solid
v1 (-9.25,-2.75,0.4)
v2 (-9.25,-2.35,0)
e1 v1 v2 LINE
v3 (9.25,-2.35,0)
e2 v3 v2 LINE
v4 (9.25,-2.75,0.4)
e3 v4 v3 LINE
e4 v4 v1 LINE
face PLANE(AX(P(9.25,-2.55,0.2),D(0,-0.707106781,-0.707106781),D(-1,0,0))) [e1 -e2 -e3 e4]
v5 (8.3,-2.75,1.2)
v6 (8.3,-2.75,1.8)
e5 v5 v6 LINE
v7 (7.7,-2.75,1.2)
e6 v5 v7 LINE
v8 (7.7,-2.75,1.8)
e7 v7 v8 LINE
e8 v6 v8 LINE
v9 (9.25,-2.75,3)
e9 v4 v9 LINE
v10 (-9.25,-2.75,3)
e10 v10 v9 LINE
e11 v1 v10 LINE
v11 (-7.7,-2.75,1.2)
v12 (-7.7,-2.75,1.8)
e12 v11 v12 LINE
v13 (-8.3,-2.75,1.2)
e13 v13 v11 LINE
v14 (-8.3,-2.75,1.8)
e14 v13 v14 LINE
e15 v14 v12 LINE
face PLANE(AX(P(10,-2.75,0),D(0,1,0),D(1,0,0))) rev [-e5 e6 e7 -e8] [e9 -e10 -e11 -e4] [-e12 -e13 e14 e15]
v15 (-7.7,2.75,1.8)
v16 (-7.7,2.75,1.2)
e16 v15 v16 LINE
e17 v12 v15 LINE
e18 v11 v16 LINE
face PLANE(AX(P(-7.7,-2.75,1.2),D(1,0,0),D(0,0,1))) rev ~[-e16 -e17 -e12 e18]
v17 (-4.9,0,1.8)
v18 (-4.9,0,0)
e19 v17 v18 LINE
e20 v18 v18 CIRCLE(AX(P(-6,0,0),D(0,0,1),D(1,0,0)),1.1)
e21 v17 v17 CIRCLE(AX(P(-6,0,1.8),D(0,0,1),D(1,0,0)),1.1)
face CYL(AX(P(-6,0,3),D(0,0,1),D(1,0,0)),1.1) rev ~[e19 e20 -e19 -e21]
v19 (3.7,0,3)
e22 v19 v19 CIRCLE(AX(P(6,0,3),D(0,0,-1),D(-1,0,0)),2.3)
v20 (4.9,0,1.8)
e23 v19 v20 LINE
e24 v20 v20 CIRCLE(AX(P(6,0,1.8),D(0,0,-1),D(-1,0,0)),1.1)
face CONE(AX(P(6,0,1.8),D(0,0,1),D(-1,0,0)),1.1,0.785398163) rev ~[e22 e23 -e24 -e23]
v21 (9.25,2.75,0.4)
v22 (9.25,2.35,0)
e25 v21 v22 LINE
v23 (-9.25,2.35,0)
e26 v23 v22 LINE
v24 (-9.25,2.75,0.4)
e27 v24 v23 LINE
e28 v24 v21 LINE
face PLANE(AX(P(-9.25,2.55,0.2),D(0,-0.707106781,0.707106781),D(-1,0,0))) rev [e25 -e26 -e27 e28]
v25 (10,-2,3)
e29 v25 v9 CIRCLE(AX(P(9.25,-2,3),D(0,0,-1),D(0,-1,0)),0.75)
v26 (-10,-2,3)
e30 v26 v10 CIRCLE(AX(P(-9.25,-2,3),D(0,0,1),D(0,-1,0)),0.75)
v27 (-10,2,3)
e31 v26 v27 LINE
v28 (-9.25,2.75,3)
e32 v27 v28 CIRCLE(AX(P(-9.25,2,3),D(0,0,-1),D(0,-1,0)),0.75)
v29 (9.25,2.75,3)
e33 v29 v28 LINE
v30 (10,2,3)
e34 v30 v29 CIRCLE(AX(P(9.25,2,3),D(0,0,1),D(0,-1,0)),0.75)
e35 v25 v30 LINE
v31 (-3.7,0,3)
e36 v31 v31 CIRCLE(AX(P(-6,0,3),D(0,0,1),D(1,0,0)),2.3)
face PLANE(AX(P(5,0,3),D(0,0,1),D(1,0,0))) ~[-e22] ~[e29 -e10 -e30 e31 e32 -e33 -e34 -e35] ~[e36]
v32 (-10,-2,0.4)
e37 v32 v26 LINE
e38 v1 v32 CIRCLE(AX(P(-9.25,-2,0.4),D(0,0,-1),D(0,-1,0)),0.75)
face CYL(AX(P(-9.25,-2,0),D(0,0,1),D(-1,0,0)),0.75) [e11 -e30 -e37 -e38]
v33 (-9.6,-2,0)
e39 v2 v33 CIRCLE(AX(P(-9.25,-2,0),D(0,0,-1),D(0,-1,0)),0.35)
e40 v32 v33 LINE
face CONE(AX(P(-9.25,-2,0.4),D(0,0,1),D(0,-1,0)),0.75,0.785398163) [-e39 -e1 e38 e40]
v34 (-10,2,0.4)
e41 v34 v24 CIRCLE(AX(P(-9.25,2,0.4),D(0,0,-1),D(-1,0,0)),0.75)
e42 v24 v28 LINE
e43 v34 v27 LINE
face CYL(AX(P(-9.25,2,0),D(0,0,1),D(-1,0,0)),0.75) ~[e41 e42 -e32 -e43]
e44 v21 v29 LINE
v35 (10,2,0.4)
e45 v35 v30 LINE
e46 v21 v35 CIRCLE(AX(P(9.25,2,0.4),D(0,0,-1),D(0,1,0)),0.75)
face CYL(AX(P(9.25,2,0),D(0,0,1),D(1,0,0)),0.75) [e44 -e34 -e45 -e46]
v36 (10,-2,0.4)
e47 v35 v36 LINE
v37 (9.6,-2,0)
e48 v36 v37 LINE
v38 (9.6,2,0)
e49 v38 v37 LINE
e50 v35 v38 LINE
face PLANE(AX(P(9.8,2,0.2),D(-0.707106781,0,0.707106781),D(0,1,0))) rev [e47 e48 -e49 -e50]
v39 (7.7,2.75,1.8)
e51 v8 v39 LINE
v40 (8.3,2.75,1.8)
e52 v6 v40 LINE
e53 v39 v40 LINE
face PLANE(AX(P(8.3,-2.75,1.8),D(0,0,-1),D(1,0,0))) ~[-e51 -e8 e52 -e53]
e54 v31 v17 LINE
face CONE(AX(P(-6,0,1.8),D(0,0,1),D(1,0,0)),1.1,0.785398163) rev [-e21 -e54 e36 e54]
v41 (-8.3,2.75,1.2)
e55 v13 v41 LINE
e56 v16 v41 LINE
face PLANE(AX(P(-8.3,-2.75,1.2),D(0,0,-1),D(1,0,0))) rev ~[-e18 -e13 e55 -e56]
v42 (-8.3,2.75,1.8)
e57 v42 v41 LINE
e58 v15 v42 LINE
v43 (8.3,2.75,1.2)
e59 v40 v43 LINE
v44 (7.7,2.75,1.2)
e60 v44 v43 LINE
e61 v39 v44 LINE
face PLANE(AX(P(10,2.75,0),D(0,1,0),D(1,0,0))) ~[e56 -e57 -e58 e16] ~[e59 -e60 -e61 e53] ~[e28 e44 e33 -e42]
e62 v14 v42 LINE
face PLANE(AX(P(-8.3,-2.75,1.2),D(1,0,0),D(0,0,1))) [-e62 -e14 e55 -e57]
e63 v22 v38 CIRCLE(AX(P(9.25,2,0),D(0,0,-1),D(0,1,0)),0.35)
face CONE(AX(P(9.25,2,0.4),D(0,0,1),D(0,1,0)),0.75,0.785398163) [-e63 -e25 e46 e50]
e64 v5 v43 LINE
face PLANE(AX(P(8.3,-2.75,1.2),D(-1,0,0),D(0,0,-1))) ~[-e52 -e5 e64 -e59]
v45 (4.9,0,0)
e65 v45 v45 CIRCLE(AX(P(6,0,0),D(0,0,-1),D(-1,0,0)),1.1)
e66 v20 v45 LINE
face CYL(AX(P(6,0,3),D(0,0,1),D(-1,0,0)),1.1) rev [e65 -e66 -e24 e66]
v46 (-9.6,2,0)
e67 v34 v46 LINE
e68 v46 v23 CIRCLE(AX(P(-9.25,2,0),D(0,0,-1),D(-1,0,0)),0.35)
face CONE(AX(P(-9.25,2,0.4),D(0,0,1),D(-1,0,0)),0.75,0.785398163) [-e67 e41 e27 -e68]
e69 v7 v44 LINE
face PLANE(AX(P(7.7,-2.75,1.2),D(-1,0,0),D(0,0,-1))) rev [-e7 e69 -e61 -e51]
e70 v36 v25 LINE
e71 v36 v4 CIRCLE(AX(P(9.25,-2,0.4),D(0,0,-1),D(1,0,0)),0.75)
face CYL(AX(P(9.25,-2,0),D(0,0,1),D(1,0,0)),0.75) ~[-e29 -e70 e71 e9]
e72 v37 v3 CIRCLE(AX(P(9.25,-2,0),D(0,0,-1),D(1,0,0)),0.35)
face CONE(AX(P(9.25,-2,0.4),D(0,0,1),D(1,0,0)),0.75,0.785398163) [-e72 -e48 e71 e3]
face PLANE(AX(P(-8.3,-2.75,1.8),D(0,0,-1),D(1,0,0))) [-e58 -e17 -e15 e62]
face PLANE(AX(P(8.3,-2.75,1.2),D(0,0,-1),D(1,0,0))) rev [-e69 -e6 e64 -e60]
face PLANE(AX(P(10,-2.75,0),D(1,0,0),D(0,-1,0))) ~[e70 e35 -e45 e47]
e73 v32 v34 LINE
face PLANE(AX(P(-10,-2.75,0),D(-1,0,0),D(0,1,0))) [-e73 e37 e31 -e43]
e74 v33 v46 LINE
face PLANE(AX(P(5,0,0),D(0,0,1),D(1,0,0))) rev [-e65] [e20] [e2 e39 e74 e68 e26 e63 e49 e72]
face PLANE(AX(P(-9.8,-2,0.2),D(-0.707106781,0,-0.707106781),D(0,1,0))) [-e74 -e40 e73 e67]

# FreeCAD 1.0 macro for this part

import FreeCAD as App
import Part
import Sketcher
from FreeCAD import Vector


def edges_at(feature, points):
    """Names of the edges that pass closest to the given points."""
    edges = feature.Shape.Edges
    near = lambda p: min(range(len(edges)), key=lambda i: edges[i].distToShape(Part.Vertex(*p))[0])
    return sorted({f"Edge{near(p) + 1}" for p in points})

doc = App.newDocument("Part")
body = doc.addObject("PartDesign::Body", "Body")

sketch1 = doc.addObject("Sketcher::SketchObject", "Sketch")
body.addObject(sketch1)
sketch1.AttachmentSupport = (doc.XY_Plane, [""])
sketch1.MapMode = "FlatFace"
sketch1.addGeometry([
    Part.LineSegment(Vector(-10, 3, 0), Vector(-10, -3, 0)),
    Part.LineSegment(Vector(-10, -3, 0), Vector(0, -3, 0)),
    Part.LineSegment(Vector(0, -3, 0), Vector(0, 3, 0)),
    Part.LineSegment(Vector(0, 3, 0), Vector(-10, 3, 0)),
], False)
sketch1.addConstraint([
    Sketcher.Constraint("Coincident", 0, 2, 1, 1),
    Sketcher.Constraint("Coincident", 1, 2, 2, 1),
    Sketcher.Constraint("Coincident", 2, 2, 3, 1),
    Sketcher.Constraint("Coincident", 3, 2, 0, 1),
    Sketcher.Constraint("Vertical", 0),
    Sketcher.Constraint("Horizontal", 1),
    Sketcher.Constraint("Vertical", 2),
    Sketcher.Constraint("Horizontal", 3),
    Sketcher.Constraint("Symmetric", 1, 2, 2, 2, -1, 1),
    Sketcher.Constraint("DistanceX", 1, 1, 1, 2, 10.0),
    Sketcher.Constraint("DistanceY", 0, 2, 0, 1, 5.5),
])
pad1 = doc.addObject("PartDesign::Pad", "Pad")
body.addObject(pad1)
pad1.Profile = sketch1
pad1.Length = 3

sketch2 = doc.addObject("Sketcher::SketchObject", "Sketch001")
body.addObject(sketch2)
sketch2.AttachmentSupport = (doc.XY_Plane, [""])
sketch2.MapMode = "FlatFace"
sketch2.AttachmentOffset = App.Placement(Vector(0, 0, 3), App.Rotation())
sketch2.addGeometry(Part.Circle(Vector(-6, 0, 0), Vector(0, 0, 1), 1.1), False)
sketch2.addConstraint([
    Sketcher.Constraint("PointOnObject", 0, 3, -1),
    Sketcher.Constraint("Diameter", 0, 2.2),
    Sketcher.Constraint("DistanceX", 0, 3, -1, 1, 6.0),
])
pocket1 = doc.addObject("PartDesign::Pocket", "Pocket")
body.addObject(pocket1)
pocket1.Profile = sketch2
pocket1.Type = "ThroughAll"

sketch3 = doc.addObject("Sketcher::SketchObject", "Sketch002")
body.addObject(sketch3)
sketch3.AttachmentSupport = (doc.XZ_Plane, [""])
sketch3.MapMode = "FlatFace"
sketch3.AttachmentOffset = App.Placement(Vector(0, 0, 2.75), App.Rotation())
sketch3.addGeometry([
    Part.LineSegment(Vector(-8.3, 1.8, 0), Vector(-8.3, 1.2, 0)),
    Part.LineSegment(Vector(-8.3, 1.2, 0), Vector(-7.7, 1.2, 0)),
    Part.LineSegment(Vector(-7.7, 1.2, 0), Vector(-7.7, 1.8, 0)),
    Part.LineSegment(Vector(-7.7, 1.8, 0), Vector(-8.3, 1.8, 0)),
], False)
sketch3.addConstraint([
    Sketcher.Constraint("Coincident", 0, 2, 1, 1),
    Sketcher.Constraint("Coincident", 1, 2, 2, 1),
    Sketcher.Constraint("Coincident", 2, 2, 3, 1),
    Sketcher.Constraint("Coincident", 3, 2, 0, 1),
    Sketcher.Constraint("Vertical", 0),
    Sketcher.Constraint("Horizontal", 1),
    Sketcher.Constraint("Vertical", 2),
    Sketcher.Constraint("Horizontal", 3),
    Sketcher.Constraint("Equal", 3, 0),
    Sketcher.Constraint("DistanceX", 1, 1, 1, 2, 0.6),
    Sketcher.Constraint("DistanceX", 0, 2, -1, 1, 8.3),
    Sketcher.Constraint("DistanceY", -1, 1, 0, 2, 1.2),
])
pocket2 = doc.addObject("PartDesign::Pocket", "Pocket001")
body.addObject(pocket2)
pocket2.Profile = sketch3
pocket2.Type = "ThroughAll"
doc.recompute()

fillet = doc.addObject("PartDesign::Fillet", "Fillet")
body.addObject(fillet)
fillet.Base = (pocket2, edges_at(pocket2, [(-10, -2.75, 1.5), (-10, 2.75, 1.5)]))
fillet.Radius = 0.75
body2 = doc.addObject("PartDesign::Body", "Body001")
doc.recompute()

body2.BaseFeature = body
doc.recompute()

mirroring = doc.addObject("Part::Mirroring", "Mirroring")
mirroring.Source = body
mirroring.Base = Vector(0, 0, 0)
mirroring.Normal = Vector(1, 0, 0)
body3 = doc.addObject("PartDesign::Body", "Body002")
body3.BaseFeature = mirroring
boolean = doc.addObject("PartDesign::Boolean", "Boolean")
body2.addObject(boolean)
boolean.Type = "Fuse"
boolean.addObjects([body3])
doc.recompute()

chamfer = doc.addObject("PartDesign::Chamfer", "Chamfer")
body2.addObject(chamfer)
chamfer.Base = (boolean, edges_at(boolean, [(-7.1, 0, 3), (7.1, 0, 3)]))
chamfer.Size = 1.2
doc.recompute()

chamfer2 = doc.addObject("PartDesign::Chamfer", "Chamfer001")
body2.addObject(chamfer2)
chamfer2.Base = (chamfer, edges_at(chamfer, [(0, -2.75, 0)]))
chamfer2.Size = 0.4
mirroring.Visibility = False

doc.recompute()
